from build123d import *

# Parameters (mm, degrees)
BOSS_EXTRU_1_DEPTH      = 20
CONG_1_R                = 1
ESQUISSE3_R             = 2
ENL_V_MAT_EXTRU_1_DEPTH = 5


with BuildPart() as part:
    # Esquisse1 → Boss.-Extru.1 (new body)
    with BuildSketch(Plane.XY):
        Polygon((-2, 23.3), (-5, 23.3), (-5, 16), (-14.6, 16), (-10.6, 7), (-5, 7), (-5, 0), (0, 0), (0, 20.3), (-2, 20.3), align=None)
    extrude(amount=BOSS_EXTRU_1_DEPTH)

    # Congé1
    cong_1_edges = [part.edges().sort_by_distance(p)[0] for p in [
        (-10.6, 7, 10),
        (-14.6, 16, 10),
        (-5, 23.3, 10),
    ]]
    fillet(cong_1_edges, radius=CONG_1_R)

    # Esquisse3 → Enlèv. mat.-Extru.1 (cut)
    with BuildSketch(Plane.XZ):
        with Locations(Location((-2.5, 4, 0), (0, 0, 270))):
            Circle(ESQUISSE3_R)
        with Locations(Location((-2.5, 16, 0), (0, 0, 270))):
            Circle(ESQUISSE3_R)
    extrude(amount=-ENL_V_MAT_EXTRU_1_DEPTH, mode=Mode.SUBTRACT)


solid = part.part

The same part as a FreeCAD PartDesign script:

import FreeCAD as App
import Part
import Sketcher
from FreeCAD import Vector
Q = App.Units.Quantity


def edges_at(feature, points):
    """Names of the edges that pass closest to the given points."""
    edges = feature.Shape.Edges
    near = lambda p: min(range(len(edges)), key=lambda i: edges[i].distToShape(Part.Vertex(*p))[0])
    return sorted({f"Edge{near(p) + 1}" for p in points})


def add_polygon(sketch, points):
    """Adds a closed chain of lines whose ends are joined by coincident constraints."""
    first, n = sketch.GeometryCount, len(points)
    for a, b in zip(points, points[1:] + points[:1]):
        sketch.addGeometry(Part.LineSegment(App.Vector(*a, 0), App.Vector(*b, 0)), False)
    for i in range(n):
        sketch.addConstraint(Sketcher.Constraint("Coincident", first + i, 2, first + (i + 1) % n, 1))

doc = App.newDocument("Part")
body = doc.addObject("PartDesign::Body", "Body")

# Sketch on XY plane
sketch1 = doc.addObject("Sketcher::SketchObject", "Sketch")
body.addObject(sketch1)
sketch1.AttachmentSupport = (doc.XY_Plane, [""])
sketch1.MapMode = "FlatFace"
add_polygon(sketch1, [(-2, 23.3), (-5, 23.3), (-5, 16), (-14.6, 16), (-10.6, 7), (-5, 7), (-5, 0), (0, 0), (0, 20.3), (-2, 20.3)])  # lines 0-9
sketch1.addConstraint([
    Sketcher.Constraint("Horizontal", 0),
    Sketcher.Constraint("Vertical", 1),
    Sketcher.Constraint("Horizontal", 2),
    Sketcher.Constraint("Horizontal", 4),
    Sketcher.Constraint("Vertical", 5),
    Sketcher.Constraint("Horizontal", 6),
    Sketcher.Constraint("Vertical", 7),
    Sketcher.Constraint("Horizontal", 8),
    Sketcher.Constraint("Vertical", 9),
    Sketcher.Constraint("Coincident", 6, 2, -1, 1),
    Sketcher.Constraint("Vertical", 1, 2, 4, 2),
    Sketcher.Constraint("Equal", 0, 9),
    Sketcher.Constraint("DistanceX", 0, 2, 0, 1, Q("3 mm")),
    Sketcher.Constraint("DistanceX", 6, 1, 6, 2, Q("5 mm")),
    Sketcher.Constraint("DistanceY", 5, 2, 5, 1, Q("7 mm")),
    Sketcher.Constraint("DistanceX", 2, 2, 2, 1, Q("9.6 mm")),
    Sketcher.Constraint("DistanceX", 4, 1, 4, 2, Q("5.6 mm")),
    Sketcher.Constraint("DistanceY", 1, 2, 1, 1, Q("7.3 mm")),
    Sketcher.Constraint("DistanceY", 7, 1, 7, 2, Q("20.3 mm")),
])
pad1 = doc.addObject("PartDesign::Pad", "Pad")
body.addObject(pad1)
pad1.Profile = sketch1
pad1.Length = 20
doc.recompute()

fillet = doc.addObject("PartDesign::Fillet", "Fillet")
body.addObject(fillet)
fillet.Base = (pad1, edges_at(pad1, [(-10.6, 7, 10), (-14.6, 16, 10), (-5, 23.3, 10)]))
fillet.Radius = 1

# Sketch on XZ plane
sketch2 = doc.addObject("Sketcher::SketchObject", "Sketch001")
body.addObject(sketch2)
sketch2.AttachmentSupport = (doc.XZ_Plane, [""])
sketch2.MapMode = "FlatFace"
sketch2.addGeometry([
    Part.Circle(Vector(-2.5, 4, 0), Vector(0, 0, 1), 2),
    Part.Circle(Vector(-2.5, 16, 0), Vector(0, 0, 1), 2),
], False)
sketch2.addConstraint([
    Sketcher.Constraint("Equal", 0, 1),
    Sketcher.Constraint("Vertical", 0, 3, 1, 3),
    Sketcher.Constraint("Diameter", 0, Q("4 mm")),
    Sketcher.Constraint("DistanceY", -1, 1, 0, 3, Q("4 mm")),
    Sketcher.Constraint("DistanceY", -1, 1, 1, 3, Q("16 mm")),
    Sketcher.Constraint("DistanceX", 0, 3, -1, 1, Q("2.5 mm")),
])
pocket1 = doc.addObject("PartDesign::Pocket", "Pocket")
body.addObject(pocket1)
pocket1.Profile = sketch2
pocket1.Length = 5

doc.recompute()
